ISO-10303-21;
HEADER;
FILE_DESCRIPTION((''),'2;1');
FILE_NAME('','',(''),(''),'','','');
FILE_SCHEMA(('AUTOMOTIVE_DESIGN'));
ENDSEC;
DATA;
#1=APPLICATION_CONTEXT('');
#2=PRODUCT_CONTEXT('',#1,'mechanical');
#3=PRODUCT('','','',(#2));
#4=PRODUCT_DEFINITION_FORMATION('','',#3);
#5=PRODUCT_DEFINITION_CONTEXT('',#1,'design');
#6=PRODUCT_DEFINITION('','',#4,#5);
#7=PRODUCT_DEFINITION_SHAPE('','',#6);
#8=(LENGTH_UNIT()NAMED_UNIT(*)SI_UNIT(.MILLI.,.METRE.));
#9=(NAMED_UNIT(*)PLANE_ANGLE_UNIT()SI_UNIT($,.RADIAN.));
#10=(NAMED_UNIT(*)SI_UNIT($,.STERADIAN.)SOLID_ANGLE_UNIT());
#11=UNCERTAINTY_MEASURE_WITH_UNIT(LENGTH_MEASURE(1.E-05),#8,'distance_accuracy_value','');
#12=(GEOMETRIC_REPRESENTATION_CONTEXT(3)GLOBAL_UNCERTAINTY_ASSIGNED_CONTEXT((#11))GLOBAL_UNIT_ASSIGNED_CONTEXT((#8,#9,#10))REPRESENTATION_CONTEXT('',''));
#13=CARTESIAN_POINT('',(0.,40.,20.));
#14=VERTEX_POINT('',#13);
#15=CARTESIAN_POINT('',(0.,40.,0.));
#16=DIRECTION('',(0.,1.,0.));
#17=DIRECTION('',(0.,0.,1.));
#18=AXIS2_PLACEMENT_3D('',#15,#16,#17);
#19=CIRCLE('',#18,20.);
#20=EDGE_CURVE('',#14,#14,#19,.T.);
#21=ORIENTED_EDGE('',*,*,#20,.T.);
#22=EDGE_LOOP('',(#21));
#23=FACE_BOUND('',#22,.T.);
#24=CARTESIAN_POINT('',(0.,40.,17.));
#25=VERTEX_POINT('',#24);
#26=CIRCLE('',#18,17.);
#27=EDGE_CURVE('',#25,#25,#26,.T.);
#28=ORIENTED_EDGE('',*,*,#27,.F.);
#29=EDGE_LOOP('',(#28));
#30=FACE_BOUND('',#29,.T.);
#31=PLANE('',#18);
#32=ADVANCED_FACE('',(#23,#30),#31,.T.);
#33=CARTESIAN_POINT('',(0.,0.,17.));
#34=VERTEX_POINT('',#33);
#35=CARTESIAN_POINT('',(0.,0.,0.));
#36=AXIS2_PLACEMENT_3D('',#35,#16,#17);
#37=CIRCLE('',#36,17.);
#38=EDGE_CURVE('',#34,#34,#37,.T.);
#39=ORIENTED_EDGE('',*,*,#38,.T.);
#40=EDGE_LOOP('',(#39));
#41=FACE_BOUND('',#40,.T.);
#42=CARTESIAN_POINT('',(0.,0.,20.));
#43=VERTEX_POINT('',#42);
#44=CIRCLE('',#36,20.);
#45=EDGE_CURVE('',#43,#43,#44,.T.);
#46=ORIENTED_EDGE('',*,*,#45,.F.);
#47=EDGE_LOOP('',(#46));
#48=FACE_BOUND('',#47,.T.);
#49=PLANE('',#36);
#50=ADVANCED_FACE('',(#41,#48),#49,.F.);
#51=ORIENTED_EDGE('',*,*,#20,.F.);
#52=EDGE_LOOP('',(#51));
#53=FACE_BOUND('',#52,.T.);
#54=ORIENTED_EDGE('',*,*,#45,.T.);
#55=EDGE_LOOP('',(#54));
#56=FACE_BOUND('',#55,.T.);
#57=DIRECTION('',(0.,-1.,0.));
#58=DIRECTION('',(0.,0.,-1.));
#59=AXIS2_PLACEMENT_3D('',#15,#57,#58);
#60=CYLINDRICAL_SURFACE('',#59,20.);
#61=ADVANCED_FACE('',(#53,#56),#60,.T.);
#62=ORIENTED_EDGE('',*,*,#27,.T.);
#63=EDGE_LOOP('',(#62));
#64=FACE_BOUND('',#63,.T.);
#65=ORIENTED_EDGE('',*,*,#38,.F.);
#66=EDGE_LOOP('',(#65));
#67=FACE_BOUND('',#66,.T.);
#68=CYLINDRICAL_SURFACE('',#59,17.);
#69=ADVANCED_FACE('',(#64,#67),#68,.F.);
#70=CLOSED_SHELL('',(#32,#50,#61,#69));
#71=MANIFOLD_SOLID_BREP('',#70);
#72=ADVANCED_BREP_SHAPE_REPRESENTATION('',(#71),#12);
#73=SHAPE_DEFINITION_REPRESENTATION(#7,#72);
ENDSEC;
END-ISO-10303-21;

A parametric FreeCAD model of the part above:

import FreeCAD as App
import Part
import Sketcher

doc = App.newDocument("Part")
body = doc.addObject("PartDesign::Body", "Body")

# Sketch on XZ plane
sketch1 = body.newObject("Sketcher::SketchObject", "Sketch")
sketch1.AttachmentSupport = (doc.getObject("XZ_Plane"), [""])
sketch1.MapMode = "FlatFace"
sketch1.addGeometry(Part.Circle(App.Vector(0, 0, 0), App.Vector(0, 0, 1), 20), False)
sketch1.addGeometry(Part.Circle(App.Vector(0, 0, 0), App.Vector(0, 0, 1), 17), False)
sketch1.addConstraint(Sketcher.Constraint("Coincident", 0, 3, -1, 1))
sketch1.addConstraint(Sketcher.Constraint("Coincident", 1, 3, -1, 1))
sketch1.addConstraint(Sketcher.Constraint("Diameter", 0, 40.0))
sketch1.addConstraint(Sketcher.Constraint("Diameter", 1, 34.0))
pad1 = body.newObject("PartDesign::Pad", "Pad")
pad1.Profile = sketch1
pad1.Length = 40
pad1.Reversed = True

doc.recompute()
